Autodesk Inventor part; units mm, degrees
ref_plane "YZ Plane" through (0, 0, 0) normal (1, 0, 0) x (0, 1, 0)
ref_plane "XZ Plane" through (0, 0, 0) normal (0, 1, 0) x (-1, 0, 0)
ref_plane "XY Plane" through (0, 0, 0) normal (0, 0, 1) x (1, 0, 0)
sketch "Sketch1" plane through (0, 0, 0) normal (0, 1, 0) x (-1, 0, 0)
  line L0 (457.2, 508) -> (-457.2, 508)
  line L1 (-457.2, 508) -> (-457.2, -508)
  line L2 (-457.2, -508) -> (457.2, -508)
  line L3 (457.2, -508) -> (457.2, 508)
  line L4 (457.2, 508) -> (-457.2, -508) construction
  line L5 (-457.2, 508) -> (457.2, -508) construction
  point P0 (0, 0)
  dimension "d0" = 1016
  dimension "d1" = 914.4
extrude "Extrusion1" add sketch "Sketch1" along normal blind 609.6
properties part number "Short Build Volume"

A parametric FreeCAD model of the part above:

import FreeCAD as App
import Part
import Sketcher
from FreeCAD import Vector
Q = App.Units.Quantity

doc = App.newDocument("Part")
body = doc.addObject("PartDesign::Body", "Body")

sketch1 = doc.addObject("Sketcher::SketchObject", "Sketch")
body.addObject(sketch1)
sketch1.AttachmentSupport = (doc.XZ_Plane, [""])
sketch1.MapMode = "FlatFace"
sketch1.addGeometry([
    Part.LineSegment(Vector(-457, -508, 0), Vector(-457, 508, 0)),
    Part.LineSegment(Vector(-457, 508, 0), Vector(457, 508, 0)),
    Part.LineSegment(Vector(457, 508, 0), Vector(457, -508, 0)),
    Part.LineSegment(Vector(457, -508, 0), Vector(-457, -508, 0)),
], False)
sketch1.addConstraint([
    Sketcher.Constraint("Coincident", 0, 2, 1, 1),
    Sketcher.Constraint("Coincident", 1, 2, 2, 1),
    Sketcher.Constraint("Coincident", 2, 2, 3, 1),
    Sketcher.Constraint("Coincident", 3, 2, 0, 1),
    Sketcher.Constraint("Vertical", 0),
    Sketcher.Constraint("Horizontal", 1),
    Sketcher.Constraint("Vertical", 2),
    Sketcher.Constraint("Horizontal", 3),
    Sketcher.Constraint("Symmetric", 0, 2, 2, 2, -1, 1),
    Sketcher.Constraint("DistanceX", 1, 1, 1, 2, Q("36 in")),
    Sketcher.Constraint("DistanceY", 0, 1, 0, 2, Q("40 in")),
])
pad1 = doc.addObject("PartDesign::Pad", "Pad")
body.addObject(pad1)
pad1.Profile = sketch1
pad1.Length = Q("24 in")
pad1.Reversed = True

doc.recompute()
